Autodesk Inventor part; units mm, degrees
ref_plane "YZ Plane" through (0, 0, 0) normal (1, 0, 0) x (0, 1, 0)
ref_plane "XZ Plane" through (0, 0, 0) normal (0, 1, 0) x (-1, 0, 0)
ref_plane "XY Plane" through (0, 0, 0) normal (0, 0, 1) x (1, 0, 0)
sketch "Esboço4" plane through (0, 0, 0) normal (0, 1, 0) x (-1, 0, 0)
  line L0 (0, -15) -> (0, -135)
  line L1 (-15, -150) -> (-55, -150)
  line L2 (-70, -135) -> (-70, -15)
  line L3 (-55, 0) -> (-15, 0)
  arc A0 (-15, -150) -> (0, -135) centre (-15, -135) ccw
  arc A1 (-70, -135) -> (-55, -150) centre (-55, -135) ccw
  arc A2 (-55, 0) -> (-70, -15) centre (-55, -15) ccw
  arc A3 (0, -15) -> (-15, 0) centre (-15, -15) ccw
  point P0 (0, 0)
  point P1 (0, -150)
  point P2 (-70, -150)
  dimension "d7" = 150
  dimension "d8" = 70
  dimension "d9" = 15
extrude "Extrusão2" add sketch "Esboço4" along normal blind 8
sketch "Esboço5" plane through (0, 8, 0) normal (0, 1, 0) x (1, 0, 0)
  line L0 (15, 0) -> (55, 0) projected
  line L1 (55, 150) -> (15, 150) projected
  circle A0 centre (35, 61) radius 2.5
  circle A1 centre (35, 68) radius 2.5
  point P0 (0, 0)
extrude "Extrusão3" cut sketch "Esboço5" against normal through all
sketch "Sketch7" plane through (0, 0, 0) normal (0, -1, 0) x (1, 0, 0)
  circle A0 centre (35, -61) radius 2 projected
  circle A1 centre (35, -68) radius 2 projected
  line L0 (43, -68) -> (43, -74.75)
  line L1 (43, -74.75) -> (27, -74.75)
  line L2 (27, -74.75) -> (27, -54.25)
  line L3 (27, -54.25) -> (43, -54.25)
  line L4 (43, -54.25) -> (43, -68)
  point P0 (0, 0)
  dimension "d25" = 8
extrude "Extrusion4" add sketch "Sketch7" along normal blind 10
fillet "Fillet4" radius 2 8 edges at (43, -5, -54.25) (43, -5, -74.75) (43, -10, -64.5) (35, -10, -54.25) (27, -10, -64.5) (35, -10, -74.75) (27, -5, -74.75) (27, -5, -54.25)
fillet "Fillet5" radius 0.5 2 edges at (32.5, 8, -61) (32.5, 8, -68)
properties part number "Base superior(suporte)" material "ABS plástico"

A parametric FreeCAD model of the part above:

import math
import FreeCAD as App
import Part
import Sketcher
Q = App.Units.Quantity


def edges_at(feature, points):
    """Names of the edges that pass closest to the given points."""
    edges = feature.Shape.Edges
    near = lambda p: min(range(len(edges)), key=lambda i: edges[i].distToShape(Part.Vertex(*p))[0])
    return sorted({f"Edge{near(p) + 1}" for p in points})

doc = App.newDocument("Part")
params = doc.addObject("Spreadsheet::Sheet", "Params")
for row, (alias, value) in enumerate([
    ("sketch1_radius", "15 mm"),
    ("pad1_length", "8 mm"),
    ("sketch2_diameter", "5 mm"),
    ("sketch3_diameter", "4 mm"),
    ("sketch3_height", "20.5 mm"),
    ("pad2_length", "10 mm"),
    ("fillet_radius", "2 mm"),
    ("fillet2_radius", "0.5 mm"),
], start=1):
    params.set(f"A{row}", alias)
    params.set(f"B{row}", "=" + value)
    params.setAlias(f"B{row}", alias)

body = doc.addObject("PartDesign::Body", "Body")

# Sketch on XZ plane
sketch1 = doc.addObject("Sketcher::SketchObject", "Sketch")
body.addObject(sketch1)
sketch1.AttachmentSupport = (doc.XZ_Plane, [""])
sketch1.MapMode = "FlatFace"
sketch1.addGeometry([
    Part.LineSegment(App.Vector(0, -135, 0), App.Vector(0, -15, 0)),  # 0
    Part.ArcOfCircle(Part.Circle(App.Vector(15, -15, 0), App.Vector(0, 0, 1), 15), math.radians(90), math.radians(180)),  # 1
    Part.LineSegment(App.Vector(15, 0, 0), App.Vector(55, 0, 0)),  # 2
    Part.ArcOfCircle(Part.Circle(App.Vector(55, -15, 0), App.Vector(0, 0, 1), 15), math.radians(0), math.radians(90)),  # 3
    Part.LineSegment(App.Vector(70, -15, 0), App.Vector(70, -135, 0)),  # 4
    Part.ArcOfCircle(Part.Circle(App.Vector(55, -135, 0), App.Vector(0, 0, 1), 15), math.radians(-90), math.radians(0)),  # 5
    Part.LineSegment(App.Vector(55, -150, 0), App.Vector(15, -150, 0)),  # 6
    Part.ArcOfCircle(Part.Circle(App.Vector(15, -135, 0), App.Vector(0, 0, 1), 15), math.radians(180), math.radians(270)),  # 7
], False)
sketch1.addConstraint([
    Sketcher.Constraint("Tangent", 0, 2, 1, 2),
    Sketcher.Constraint("Tangent", 1, 1, 2, 1),
    Sketcher.Constraint("Tangent", 2, 2, 3, 2),
    Sketcher.Constraint("Tangent", 3, 1, 4, 1),
    Sketcher.Constraint("Tangent", 4, 2, 5, 2),
    Sketcher.Constraint("Tangent", 5, 1, 6, 1),
    Sketcher.Constraint("Tangent", 6, 2, 7, 2),
    Sketcher.Constraint("Tangent", 7, 1, 0, 1),
    Sketcher.Constraint("Vertical", 0),
    Sketcher.Constraint("Horizontal", 2),
    Sketcher.Constraint("Vertical", 4),
    Sketcher.Constraint("Horizontal", 6),
    Sketcher.Constraint("Equal", 1, 3),
    Sketcher.Constraint("Equal", 3, 5),
    Sketcher.Constraint("Equal", 5, 7),
    Sketcher.Constraint("PointOnObject", 0, 2, -2),
    Sketcher.Constraint("PointOnObject", 1, 1, -1),
    Sketcher.Constraint("Radius", 1, Q("15 mm")),
    Sketcher.Constraint("DistanceX", -1, 1, 3, 1, Q("70 mm")),
    Sketcher.Constraint("DistanceY", 5, 1, -1, 1, Q("150 mm")),
])
sketch1.setExpression("Constraints[17]", "Params.sketch1_radius")
pad1 = doc.addObject("PartDesign::Pad", "Pad")
body.addObject(pad1)
pad1.Profile = sketch1
pad1.setExpression("Length", "Params.pad1_length")
pad1.Reversed = True

# Sketch on XZ plane
sketch2 = doc.addObject("Sketcher::SketchObject", "Sketch001")
body.addObject(sketch2)
sketch2.AttachmentSupport = (doc.XZ_Plane, [""])
sketch2.MapMode = "FlatFace"
sketch2.AttachmentOffset = App.Placement(App.Vector(0, 0, -8), App.Rotation())
sketch2.addGeometry([
    Part.Circle(App.Vector(35, -61, 0), App.Vector(0, 0, 1), 2.5),
    Part.Circle(App.Vector(35, -68, 0), App.Vector(0, 0, 1), 2.5),
], False)
sketch2.addConstraint([
    Sketcher.Constraint("Equal", 0, 1),
    Sketcher.Constraint("Vertical", 0, 3, 1, 3),
    Sketcher.Constraint("Diameter", 0, Q("5 mm")),
    Sketcher.Constraint("DistanceX", -1, 1, 0, 3, Q("35 mm")),
    Sketcher.Constraint("DistanceY", 0, 3, -1, 1, Q("61 mm")),
    Sketcher.Constraint("DistanceY", 1, 3, -1, 1, Q("68 mm")),
])
sketch2.setExpression("Constraints[2]", "Params.sketch2_diameter")
pocket1 = doc.addObject("PartDesign::Pocket", "Pocket")
body.addObject(pocket1)
pocket1.Profile = sketch2
pocket1.Type = "ThroughAll"
pocket1.Reversed = True

# Sketch on XZ plane
sketch3 = doc.addObject("Sketcher::SketchObject", "Sketch002")
body.addObject(sketch3)
sketch3.AttachmentSupport = (doc.XZ_Plane, [""])
sketch3.MapMode = "FlatFace"
sketch3.addGeometry([
    Part.LineSegment(App.Vector(43, -74.8, 0), App.Vector(43, -54.2, 0)),  # 0
    Part.LineSegment(App.Vector(43, -54.2, 0), App.Vector(27, -54.2, 0)),  # 1
    Part.LineSegment(App.Vector(27, -54.2, 0), App.Vector(27, -74.8, 0)),  # 2
    Part.LineSegment(App.Vector(27, -74.8, 0), App.Vector(43, -74.8, 0)),  # 3
    Part.Circle(App.Vector(35, -68, 0), App.Vector(0, 0, 1), 2),  # 4
    Part.Circle(App.Vector(35, -61, 0), App.Vector(0, 0, 1), 2),  # 5
], False)
sketch3.addConstraint([
    Sketcher.Constraint("Coincident", 0, 2, 1, 1),
    Sketcher.Constraint("Coincident", 1, 2, 2, 1),
    Sketcher.Constraint("Coincident", 2, 2, 3, 1),
    Sketcher.Constraint("Coincident", 3, 2, 0, 1),
    Sketcher.Constraint("Vertical", 0),
    Sketcher.Constraint("Horizontal", 1),
    Sketcher.Constraint("Vertical", 2),
    Sketcher.Constraint("Horizontal", 3),
    Sketcher.Constraint("Equal", 4, 5),
    Sketcher.Constraint("Vertical", 4, 3, 5, 3),
    Sketcher.Constraint("Diameter", 4, Q("4 mm")),
    Sketcher.Constraint("DistanceX", 5, 3, 0, 2, Q("8 mm")),
    Sketcher.Constraint("DistanceX", 1, 2, 5, 3, Q("8 mm")),
    Sketcher.Constraint("DistanceY", 0, 1, 0, 2, Q("20.5 mm")),
    Sketcher.Constraint("DistanceX", -1, 1, 4, 3, Q("35 mm")),
    Sketcher.Constraint("DistanceY", 4, 3, -1, 1, Q("68 mm")),
    Sketcher.Constraint("DistanceY", 5, 3, -1, 1, Q("61 mm")),
    Sketcher.Constraint("DistanceY", 0, 2, -1, 1, Q("54.25 mm")),
])
sketch3.setExpression("Constraints[10]", "Params.sketch3_diameter")
sketch3.setExpression("Constraints[13]", "Params.sketch3_height")
pad2 = doc.addObject("PartDesign::Pad", "Pad001")
body.addObject(pad2)
pad2.Profile = sketch3
pad2.setExpression("Length", "Params.pad2_length")
doc.recompute()

fillet = doc.addObject("PartDesign::Fillet", "Fillet")
body.addObject(fillet)
fillet.Base = (pad2, edges_at(pad2, [
    (43, -5, -54.25),
    (43, -5, -74.75),
    (43, -10, -64.5),
    (35, -10, -54.25),
    (27, -10, -64.5),
    (35, -10, -74.75),
    (27, -5, -74.75),
    (27, -5, -54.25),
]))
fillet.setExpression("Radius", "Params.fillet_radius")
doc.recompute()

fillet2 = doc.addObject("PartDesign::Fillet", "Fillet001")
body.addObject(fillet2)
fillet2.Base = (fillet, edges_at(fillet, [(32.5, 8, -61), (32.5, 8, -68)]))
fillet2.setExpression("Radius", "Params.fillet2_radius")

doc.recompute()
